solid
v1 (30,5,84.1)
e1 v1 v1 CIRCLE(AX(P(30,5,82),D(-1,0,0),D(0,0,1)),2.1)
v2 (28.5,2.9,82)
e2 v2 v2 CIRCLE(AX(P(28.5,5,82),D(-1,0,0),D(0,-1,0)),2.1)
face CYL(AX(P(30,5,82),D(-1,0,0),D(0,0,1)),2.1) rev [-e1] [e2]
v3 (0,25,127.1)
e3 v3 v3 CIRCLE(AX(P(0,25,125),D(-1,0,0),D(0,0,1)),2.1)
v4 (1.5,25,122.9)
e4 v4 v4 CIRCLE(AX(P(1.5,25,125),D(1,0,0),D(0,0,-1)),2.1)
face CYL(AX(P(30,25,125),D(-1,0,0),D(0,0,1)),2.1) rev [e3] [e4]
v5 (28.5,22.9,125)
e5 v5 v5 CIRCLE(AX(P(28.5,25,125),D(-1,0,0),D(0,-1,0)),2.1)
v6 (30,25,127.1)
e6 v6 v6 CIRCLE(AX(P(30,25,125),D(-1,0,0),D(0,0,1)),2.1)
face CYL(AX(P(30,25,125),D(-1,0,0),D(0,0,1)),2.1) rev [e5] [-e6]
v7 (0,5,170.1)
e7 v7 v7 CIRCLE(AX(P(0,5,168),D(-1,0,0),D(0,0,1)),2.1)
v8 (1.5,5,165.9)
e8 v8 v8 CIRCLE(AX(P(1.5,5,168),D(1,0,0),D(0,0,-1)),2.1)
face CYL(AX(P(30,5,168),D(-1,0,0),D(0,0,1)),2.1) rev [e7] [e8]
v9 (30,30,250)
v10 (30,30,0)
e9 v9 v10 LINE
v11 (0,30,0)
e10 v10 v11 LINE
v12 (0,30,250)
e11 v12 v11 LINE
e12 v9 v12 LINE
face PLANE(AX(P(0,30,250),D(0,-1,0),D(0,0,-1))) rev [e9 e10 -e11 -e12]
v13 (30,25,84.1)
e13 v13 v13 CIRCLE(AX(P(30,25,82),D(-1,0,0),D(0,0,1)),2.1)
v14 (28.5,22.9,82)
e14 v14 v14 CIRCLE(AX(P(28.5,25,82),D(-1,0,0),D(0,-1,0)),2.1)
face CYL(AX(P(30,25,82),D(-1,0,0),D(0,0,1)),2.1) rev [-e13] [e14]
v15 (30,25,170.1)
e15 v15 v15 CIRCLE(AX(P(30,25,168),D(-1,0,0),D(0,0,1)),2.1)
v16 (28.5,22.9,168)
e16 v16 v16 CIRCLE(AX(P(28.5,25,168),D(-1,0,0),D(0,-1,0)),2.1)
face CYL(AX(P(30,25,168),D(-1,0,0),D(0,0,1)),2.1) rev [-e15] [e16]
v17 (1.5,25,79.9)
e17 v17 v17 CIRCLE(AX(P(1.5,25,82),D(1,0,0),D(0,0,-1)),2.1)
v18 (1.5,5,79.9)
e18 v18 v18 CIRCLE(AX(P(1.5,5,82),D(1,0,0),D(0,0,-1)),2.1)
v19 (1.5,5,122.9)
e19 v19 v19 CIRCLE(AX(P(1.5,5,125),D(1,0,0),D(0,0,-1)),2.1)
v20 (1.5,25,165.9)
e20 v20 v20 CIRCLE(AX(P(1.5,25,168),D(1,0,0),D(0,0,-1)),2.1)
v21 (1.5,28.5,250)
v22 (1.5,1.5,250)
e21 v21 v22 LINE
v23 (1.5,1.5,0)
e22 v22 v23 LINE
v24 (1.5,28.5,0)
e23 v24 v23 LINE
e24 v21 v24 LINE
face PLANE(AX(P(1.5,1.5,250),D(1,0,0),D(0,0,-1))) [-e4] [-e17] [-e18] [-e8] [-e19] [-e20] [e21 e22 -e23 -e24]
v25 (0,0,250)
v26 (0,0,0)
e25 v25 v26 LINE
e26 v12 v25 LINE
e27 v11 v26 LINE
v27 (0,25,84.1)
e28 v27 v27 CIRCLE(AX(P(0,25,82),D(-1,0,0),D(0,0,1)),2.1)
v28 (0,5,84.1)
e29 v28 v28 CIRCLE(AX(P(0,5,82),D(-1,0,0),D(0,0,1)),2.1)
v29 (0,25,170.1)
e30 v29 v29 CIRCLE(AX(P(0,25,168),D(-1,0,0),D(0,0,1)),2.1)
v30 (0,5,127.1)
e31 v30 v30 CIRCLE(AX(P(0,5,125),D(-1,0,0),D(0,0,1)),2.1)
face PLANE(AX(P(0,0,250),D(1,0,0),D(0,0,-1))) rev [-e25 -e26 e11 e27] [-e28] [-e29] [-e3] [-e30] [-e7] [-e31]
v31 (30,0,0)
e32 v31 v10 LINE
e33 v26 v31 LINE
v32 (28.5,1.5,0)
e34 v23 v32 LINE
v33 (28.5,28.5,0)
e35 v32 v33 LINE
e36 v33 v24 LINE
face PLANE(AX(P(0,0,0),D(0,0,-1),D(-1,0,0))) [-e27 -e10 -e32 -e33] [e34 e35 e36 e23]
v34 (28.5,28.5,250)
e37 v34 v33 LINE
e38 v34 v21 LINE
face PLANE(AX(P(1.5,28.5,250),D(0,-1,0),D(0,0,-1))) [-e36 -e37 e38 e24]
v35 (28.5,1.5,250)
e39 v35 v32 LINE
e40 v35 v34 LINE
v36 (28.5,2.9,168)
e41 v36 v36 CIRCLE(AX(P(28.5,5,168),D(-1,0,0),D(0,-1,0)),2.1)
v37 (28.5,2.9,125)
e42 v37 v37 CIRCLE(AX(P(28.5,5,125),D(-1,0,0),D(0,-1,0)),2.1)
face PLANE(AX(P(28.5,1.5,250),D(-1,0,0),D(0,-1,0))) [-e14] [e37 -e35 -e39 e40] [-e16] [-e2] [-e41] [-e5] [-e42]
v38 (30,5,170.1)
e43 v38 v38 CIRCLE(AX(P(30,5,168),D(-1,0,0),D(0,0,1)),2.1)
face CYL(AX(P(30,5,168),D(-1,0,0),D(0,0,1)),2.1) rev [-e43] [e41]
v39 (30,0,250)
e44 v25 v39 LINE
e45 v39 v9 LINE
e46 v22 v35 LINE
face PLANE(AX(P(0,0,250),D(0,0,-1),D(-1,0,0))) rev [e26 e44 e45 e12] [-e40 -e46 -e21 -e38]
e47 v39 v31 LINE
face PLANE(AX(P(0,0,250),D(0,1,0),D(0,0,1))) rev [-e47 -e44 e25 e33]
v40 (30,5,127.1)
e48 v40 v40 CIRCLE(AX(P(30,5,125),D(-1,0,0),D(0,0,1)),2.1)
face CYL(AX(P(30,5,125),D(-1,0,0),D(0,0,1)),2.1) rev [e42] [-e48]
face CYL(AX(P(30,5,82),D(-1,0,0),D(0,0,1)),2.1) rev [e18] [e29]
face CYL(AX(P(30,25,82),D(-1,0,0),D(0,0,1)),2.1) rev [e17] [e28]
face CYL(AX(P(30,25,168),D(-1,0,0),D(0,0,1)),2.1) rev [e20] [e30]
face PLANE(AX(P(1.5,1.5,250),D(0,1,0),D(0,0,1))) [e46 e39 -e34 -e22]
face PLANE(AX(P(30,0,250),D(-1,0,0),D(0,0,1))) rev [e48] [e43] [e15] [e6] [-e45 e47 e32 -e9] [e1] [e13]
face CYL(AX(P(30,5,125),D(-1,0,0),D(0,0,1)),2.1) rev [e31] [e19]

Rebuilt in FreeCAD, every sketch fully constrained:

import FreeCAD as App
import Part
import Sketcher

V = App.Vector


def add_polygon(sketch, points):
    """Adds a closed chain of lines whose ends are joined by coincident constraints."""
    first, n = sketch.GeometryCount, len(points)
    for a, b in zip(points, points[1:] + points[:1]):
        sketch.addGeometry(Part.LineSegment(App.Vector(*a, 0), App.Vector(*b, 0)), False)
    for i in range(n):
        sketch.addConstraint(Sketcher.Constraint("Coincident", first + i, 2, first + (i + 1) % n, 1))

doc = App.newDocument("Part")
body = doc.addObject("PartDesign::Body", "Body")

# Sketch on XY plane
sketch1 = body.newObject("Sketcher::SketchObject", "Sketch")
sketch1.AttachmentSupport = (doc.getObject("XY_Plane"), [""])
sketch1.MapMode = "FlatFace"
add_polygon(sketch1, [(0, 30), (0, 0), (30, 0), (30, 30)])  # lines 0-3
add_polygon(sketch1, [(28.5, 1.5), (1.5, 1.5), (1.5, 28.5), (28.5, 28.5)])  # lines 4-7
sketch1.addConstraint(Sketcher.Constraint("Vertical", 0))
sketch1.addConstraint(Sketcher.Constraint("Horizontal", 1))
sketch1.addConstraint(Sketcher.Constraint("Vertical", 2))
sketch1.addConstraint(Sketcher.Constraint("Horizontal", 3))
sketch1.addConstraint(Sketcher.Constraint("Horizontal", 4))
sketch1.addConstraint(Sketcher.Constraint("Vertical", 5))
sketch1.addConstraint(Sketcher.Constraint("Horizontal", 6))
sketch1.addConstraint(Sketcher.Constraint("Vertical", 7))
sketch1.addConstraint(Sketcher.Constraint("Coincident", 0, 2, -1, 1))
sketch1.addConstraint(Sketcher.Constraint("Equal", 3, 0))
sketch1.addConstraint(Sketcher.Constraint("Equal", 6, 5))
sketch1.addConstraint(Sketcher.Constraint("DistanceX", 1, 1, 1, 2, 30.0))
sketch1.addConstraint(Sketcher.Constraint("DistanceX", 4, 2, 4, 1, 27.0))
sketch1.addConstraint(Sketcher.Constraint("DistanceX", -1, 1, 4, 2, 1.5))
sketch1.addConstraint(Sketcher.Constraint("DistanceY", -1, 1, 4, 2, 1.5))
pad1 = body.newObject("PartDesign::Pad", "Pad")
pad1.Profile = sketch1
pad1.Length = 250

# Sketch on YZ plane
sketch2 = body.newObject("Sketcher::SketchObject", "Sketch001")
sketch2.AttachmentSupport = (doc.getObject("YZ_Plane"), [""])
sketch2.MapMode = "FlatFace"
sketch2.addGeometry(Part.Circle(V(25, 125, 0), V(0, 0, 1), 2.1), False)
sketch2.addGeometry(Part.Circle(V(5, 125, 0), V(0, 0, 1), 2.1), False)
sketch2.addGeometry(Part.Circle(V(25, 168, 0), V(0, 0, 1), 2.1), False)
sketch2.addGeometry(Part.Circle(V(5, 168, 0), V(0, 0, 1), 2.1), False)
sketch2.addGeometry(Part.Circle(V(5, 82, 0), V(0, 0, 1), 2.1), False)
sketch2.addGeometry(Part.Circle(V(25, 82, 0), V(0, 0, 1), 2.1), False)
sketch2.addConstraint(Sketcher.Constraint("Equal", 0, 1))
sketch2.addConstraint(Sketcher.Constraint("Equal", 1, 2))
sketch2.addConstraint(Sketcher.Constraint("Equal", 2, 3))
sketch2.addConstraint(Sketcher.Constraint("Equal", 3, 4))
sketch2.addConstraint(Sketcher.Constraint("Equal", 4, 5))
sketch2.addConstraint(Sketcher.Constraint("Horizontal", 0, 3, 1, 3))
sketch2.addConstraint(Sketcher.Constraint("Horizontal", 2, 3, 3, 3))
sketch2.addConstraint(Sketcher.Constraint("Horizontal", 4, 3, 5, 3))
sketch2.addConstraint(Sketcher.Constraint("Vertical", 0, 3, 2, 3))
sketch2.addConstraint(Sketcher.Constraint("Vertical", 1, 3, 3, 3))
sketch2.addConstraint(Sketcher.Constraint("Vertical", 3, 3, 4, 3))
sketch2.addConstraint(Sketcher.Constraint("Vertical", 2, 3, 5, 3))
sketch2.addConstraint(Sketcher.Constraint("Diameter", 0, 4.2))
sketch2.addConstraint(Sketcher.Constraint("DistanceX", -1, 1, 0, 3, 25.0))
sketch2.addConstraint(Sketcher.Constraint("DistanceY", -1, 1, 0, 3, 125.0))
sketch2.addConstraint(Sketcher.Constraint("DistanceX", -1, 1, 1, 3, 5.0))
sketch2.addConstraint(Sketcher.Constraint("DistanceY", -1, 1, 2, 3, 168.0))
sketch2.addConstraint(Sketcher.Constraint("DistanceY", -1, 1, 4, 3, 82.0))
pocket1 = body.newObject("PartDesign::Pocket", "Pocket")
pocket1.Profile = sketch2
pocket1.Type = "ThroughAll"
pocket1.Reversed = True

doc.recompute()
